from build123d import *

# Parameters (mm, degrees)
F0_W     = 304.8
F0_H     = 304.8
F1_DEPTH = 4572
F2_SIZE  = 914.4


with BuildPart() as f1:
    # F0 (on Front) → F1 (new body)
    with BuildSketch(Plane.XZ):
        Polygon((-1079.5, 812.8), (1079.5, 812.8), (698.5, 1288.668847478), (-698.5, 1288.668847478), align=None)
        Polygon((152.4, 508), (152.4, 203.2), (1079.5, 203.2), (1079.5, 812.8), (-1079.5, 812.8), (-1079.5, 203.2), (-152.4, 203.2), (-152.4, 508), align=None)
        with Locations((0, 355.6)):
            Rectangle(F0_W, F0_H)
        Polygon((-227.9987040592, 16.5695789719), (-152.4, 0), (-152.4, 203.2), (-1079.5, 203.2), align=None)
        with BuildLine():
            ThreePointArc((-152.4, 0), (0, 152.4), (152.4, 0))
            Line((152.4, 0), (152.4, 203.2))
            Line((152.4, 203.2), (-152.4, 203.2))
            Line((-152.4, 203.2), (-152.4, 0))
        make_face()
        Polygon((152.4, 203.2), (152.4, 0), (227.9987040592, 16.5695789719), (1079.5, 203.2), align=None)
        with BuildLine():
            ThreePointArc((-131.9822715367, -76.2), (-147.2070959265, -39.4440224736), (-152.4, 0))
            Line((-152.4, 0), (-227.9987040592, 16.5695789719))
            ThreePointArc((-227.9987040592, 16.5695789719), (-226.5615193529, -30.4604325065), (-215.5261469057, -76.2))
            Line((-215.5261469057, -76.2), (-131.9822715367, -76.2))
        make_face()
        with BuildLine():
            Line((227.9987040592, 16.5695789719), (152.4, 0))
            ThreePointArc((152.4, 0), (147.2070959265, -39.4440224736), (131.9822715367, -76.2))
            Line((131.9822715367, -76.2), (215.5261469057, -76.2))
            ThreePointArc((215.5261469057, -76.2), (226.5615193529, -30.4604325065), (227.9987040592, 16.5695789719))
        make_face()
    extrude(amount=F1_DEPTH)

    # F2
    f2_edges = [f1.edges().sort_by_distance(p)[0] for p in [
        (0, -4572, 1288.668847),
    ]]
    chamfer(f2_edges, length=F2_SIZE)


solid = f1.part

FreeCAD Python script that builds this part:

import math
import FreeCAD as App
import Part
import Sketcher
Q = App.Units.Quantity


def edges_at(feature, points):
    """Names of the edges that pass closest to the given points."""
    edges = feature.Shape.Edges
    near = lambda p: min(range(len(edges)), key=lambda i: edges[i].distToShape(Part.Vertex(*p))[0])
    return sorted({f"Edge{near(p) + 1}" for p in points})

doc = App.newDocument("Part")
params = doc.addObject("Spreadsheet::Sheet", "Params")
for row, (alias, value) in enumerate([
    ("sketch1_radius", "9 in"),
    ("sketch1_radius2", "6 in"),
    ("sketch1_width", "55 in"),
    ("sketch1_height", "24 in"),
    ("sketch1_length", "24 in"),
    ("pad1_length", "180 in"),
    ("chamfer_size", "36 in"),
], start=1):
    params.set(f"A{row}", alias)
    params.set(f"B{row}", "=" + value)
    params.setAlias(f"B{row}", alias)

body = doc.addObject("PartDesign::Body", "Body")

# Sketch on XZ plane
sketch1 = doc.addObject("Sketcher::SketchObject", "Sketch")
body.addObject(sketch1)
sketch1.AttachmentSupport = (doc.XZ_Plane, [""])
sketch1.MapMode = "FlatFace"
sketch1.addGeometry([
    Part.LineSegment(App.Vector(1079.5, 812.8, 0), App.Vector(698.5, 1288.668847, 0)),  # 0
    Part.LineSegment(App.Vector(698.5, 1288.668847, 0), App.Vector(-698.5, 1288.668847, 0)),  # 1
    Part.LineSegment(App.Vector(-698.5, 1288.668847, 0), App.Vector(-1079.5, 812.8, 0)),  # 2
    Part.LineSegment(App.Vector(-1079.5, 812.8, 0), App.Vector(-1079.5, 203.2, 0)),  # 3
    Part.LineSegment(App.Vector(-1079.5, 203.2, 0), App.Vector(-227.998704, 16.569579, 0)),  # 4
    Part.ArcOfCircle(Part.Circle(App.Vector(0, 0, 0), App.Vector(0, 0, 1), 228.6), math.radians(175.843394), math.radians(199.471221)),  # 5
    Part.LineSegment(App.Vector(-215.526147, -76.2, 0), App.Vector(-131.982272, -76.2, 0)),  # 6
    Part.ArcOfCircle(Part.Circle(App.Vector(0, 0, 0), App.Vector(0, 0, 1), 152.4), math.radians(180), math.radians(210)),  # 7
    Part.ArcOfCircle(Part.Circle(App.Vector(0, 0, 0), App.Vector(0, 0, 1), 152.4), math.radians(0), math.radians(180)),  # 8
    Part.ArcOfCircle(Part.Circle(App.Vector(0, 0, 0), App.Vector(0, 0, 1), 152.4), math.radians(-30), math.radians(0)),  # 9
    Part.LineSegment(App.Vector(131.982272, -76.2, 0), App.Vector(215.526147, -76.2, 0)),  # 10
    Part.ArcOfCircle(Part.Circle(App.Vector(0, 0, 0), App.Vector(0, 0, 1), 228.6), math.radians(-19.471221), math.radians(4.156606)),  # 11
    Part.LineSegment(App.Vector(227.998704, 16.569579, 0), App.Vector(1079.5, 203.2, 0)),  # 12
    Part.LineSegment(App.Vector(1079.5, 203.2, 0), App.Vector(1079.5, 812.8, 0)),  # 13
], False)
sketch1.addConstraint([
    Sketcher.Constraint("Coincident", 0, 2, 1, 1),
    Sketcher.Constraint("Coincident", 1, 2, 2, 1),
    Sketcher.Constraint("Coincident", 2, 2, 3, 1),
    Sketcher.Constraint("Coincident", 3, 2, 4, 1),
    Sketcher.Constraint("Coincident", 4, 2, 5, 1),
    Sketcher.Constraint("Coincident", 5, 2, 6, 1),
    Sketcher.Constraint("Coincident", 6, 2, 7, 2),
    Sketcher.Constraint("Tangent", 7, 1, 8, 2),
    Sketcher.Constraint("Tangent", 8, 1, 9, 2),
    Sketcher.Constraint("Coincident", 9, 1, 10, 1),
    Sketcher.Constraint("Coincident", 10, 2, 11, 1),
    Sketcher.Constraint("Coincident", 11, 2, 12, 1),
    Sketcher.Constraint("Coincident", 12, 2, 13, 1),
    Sketcher.Constraint("Coincident", 13, 2, 0, 1),
    Sketcher.Constraint("Horizontal", 1),
    Sketcher.Constraint("Vertical", 3),
    Sketcher.Constraint("Horizontal", 6),
    Sketcher.Constraint("Horizontal", 10),
    Sketcher.Constraint("Vertical", 13),
    Sketcher.Constraint("Coincident", 5, 3, -1, 1),
    Sketcher.Constraint("Coincident", 7, 3, -1, 1),
    Sketcher.Constraint("Coincident", 11, 3, -1, 1),
    Sketcher.Constraint("Equal", 7, 8),
    Sketcher.Constraint("Equal", 8, 9),
    Sketcher.Constraint("Equal", 5, 11),
    Sketcher.Constraint("Symmetric", 3, 2, 12, 2, -2),
    Sketcher.Constraint("PointOnObject", 7, 1, -1),
    Sketcher.Constraint("PointOnObject", 8, 1, -1),
    Sketcher.Constraint("Horizontal", 6, 2, 9, 1),
    Sketcher.Constraint("Horizontal", 4, 2, 11, 2),
    Sketcher.Constraint("Horizontal", 2, 2, 13, 2),
    Sketcher.Constraint("Equal", 0, 2),
    Sketcher.Constraint("Radius", 5, Q("9 in")),
    Sketcher.Constraint("Radius", 7, Q("6 in")),
    Sketcher.Constraint("DistanceX", 1, 2, 1, 1, Q("55 in")),
    Sketcher.Constraint("DistanceY", 3, 2, 3, 1, Q("24 in")),
    Sketcher.Constraint("Distance", 0, Q("24 in")),
    Sketcher.Constraint("DistanceY", -1, 1, 2, 2, Q("32 in")),
    Sketcher.Constraint("DistanceY", 5, 2, -1, 1, Q("3 in")),
    Sketcher.Constraint("DistanceX", 2, 2, 1, 2, Q("15 in")),
    Sketcher.Constraint("DistanceY", -1, 1, 4, 2, Q("16.569579 mm")),
])
sketch1.setExpression("Constraints[32]", "Params.sketch1_radius")
sketch1.setExpression("Constraints[33]", "Params.sketch1_radius2")
sketch1.setExpression("Constraints[34]", "Params.sketch1_width")
sketch1.setExpression("Constraints[35]", "Params.sketch1_height")
sketch1.setExpression("Constraints[36]", "Params.sketch1_length")
pad1 = doc.addObject("PartDesign::Pad", "Pad")
body.addObject(pad1)
pad1.Profile = sketch1
pad1.setExpression("Length", "Params.pad1_length")
doc.recompute()

chamfer = doc.addObject("PartDesign::Chamfer", "Chamfer")
body.addObject(chamfer)
chamfer.Base = (pad1, edges_at(pad1, [(0, -4572, 1288.669)]))
chamfer.setExpression("Size", "Params.chamfer_size")

doc.recompute()
